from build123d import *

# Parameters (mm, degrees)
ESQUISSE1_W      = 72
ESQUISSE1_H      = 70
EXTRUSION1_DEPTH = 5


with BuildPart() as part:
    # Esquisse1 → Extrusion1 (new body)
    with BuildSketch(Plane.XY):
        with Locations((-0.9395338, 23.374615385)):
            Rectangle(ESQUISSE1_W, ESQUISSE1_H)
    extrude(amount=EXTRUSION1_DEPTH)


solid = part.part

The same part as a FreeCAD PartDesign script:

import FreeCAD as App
import Part
import Sketcher

V = App.Vector
Q = App.Units.Quantity

doc = App.newDocument("Part")
body = doc.addObject("PartDesign::Body", "Body")

# Sketch on XY plane
sketch1 = body.newObject("Sketcher::SketchObject", "Sketch")
sketch1.AttachmentSupport = (doc.getObject("XY_Plane"), [""])
sketch1.MapMode = "FlatFace"
sketch1.addGeometry([
    Part.LineSegment(V(-36.939534, 58.374615, 0), V(-36.939534, -11.625385, 0)),
    Part.LineSegment(V(-36.939534, -11.625385, 0), V(35.060466, -11.625385, 0)),
    Part.LineSegment(V(35.060466, -11.625385, 0), V(35.060466, 58.374615, 0)),
    Part.LineSegment(V(35.060466, 58.374615, 0), V(-36.939534, 58.374615, 0)),
], False)
sketch1.addConstraint([
    Sketcher.Constraint("Coincident", 0, 2, 1, 1),
    Sketcher.Constraint("Coincident", 1, 2, 2, 1),
    Sketcher.Constraint("Coincident", 2, 2, 3, 1),
    Sketcher.Constraint("Coincident", 3, 2, 0, 1),
    Sketcher.Constraint("Vertical", 0),
    Sketcher.Constraint("Horizontal", 1),
    Sketcher.Constraint("Vertical", 2),
    Sketcher.Constraint("Horizontal", 3),
    Sketcher.Constraint("DistanceX", 1, 1, 1, 2, Q("72 mm")),
    Sketcher.Constraint("DistanceY", 0, 2, 0, 1, Q("70 mm")),
    Sketcher.Constraint("DistanceX", 0, 2, -1, 1, Q("36.939534 mm")),
    Sketcher.Constraint("DistanceY", 0, 2, -1, 1, Q("11.625385 mm")),
])
pad1 = body.newObject("PartDesign::Pad", "Pad")
pad1.Profile = sketch1
pad1.Length = 5

doc.recompute()
